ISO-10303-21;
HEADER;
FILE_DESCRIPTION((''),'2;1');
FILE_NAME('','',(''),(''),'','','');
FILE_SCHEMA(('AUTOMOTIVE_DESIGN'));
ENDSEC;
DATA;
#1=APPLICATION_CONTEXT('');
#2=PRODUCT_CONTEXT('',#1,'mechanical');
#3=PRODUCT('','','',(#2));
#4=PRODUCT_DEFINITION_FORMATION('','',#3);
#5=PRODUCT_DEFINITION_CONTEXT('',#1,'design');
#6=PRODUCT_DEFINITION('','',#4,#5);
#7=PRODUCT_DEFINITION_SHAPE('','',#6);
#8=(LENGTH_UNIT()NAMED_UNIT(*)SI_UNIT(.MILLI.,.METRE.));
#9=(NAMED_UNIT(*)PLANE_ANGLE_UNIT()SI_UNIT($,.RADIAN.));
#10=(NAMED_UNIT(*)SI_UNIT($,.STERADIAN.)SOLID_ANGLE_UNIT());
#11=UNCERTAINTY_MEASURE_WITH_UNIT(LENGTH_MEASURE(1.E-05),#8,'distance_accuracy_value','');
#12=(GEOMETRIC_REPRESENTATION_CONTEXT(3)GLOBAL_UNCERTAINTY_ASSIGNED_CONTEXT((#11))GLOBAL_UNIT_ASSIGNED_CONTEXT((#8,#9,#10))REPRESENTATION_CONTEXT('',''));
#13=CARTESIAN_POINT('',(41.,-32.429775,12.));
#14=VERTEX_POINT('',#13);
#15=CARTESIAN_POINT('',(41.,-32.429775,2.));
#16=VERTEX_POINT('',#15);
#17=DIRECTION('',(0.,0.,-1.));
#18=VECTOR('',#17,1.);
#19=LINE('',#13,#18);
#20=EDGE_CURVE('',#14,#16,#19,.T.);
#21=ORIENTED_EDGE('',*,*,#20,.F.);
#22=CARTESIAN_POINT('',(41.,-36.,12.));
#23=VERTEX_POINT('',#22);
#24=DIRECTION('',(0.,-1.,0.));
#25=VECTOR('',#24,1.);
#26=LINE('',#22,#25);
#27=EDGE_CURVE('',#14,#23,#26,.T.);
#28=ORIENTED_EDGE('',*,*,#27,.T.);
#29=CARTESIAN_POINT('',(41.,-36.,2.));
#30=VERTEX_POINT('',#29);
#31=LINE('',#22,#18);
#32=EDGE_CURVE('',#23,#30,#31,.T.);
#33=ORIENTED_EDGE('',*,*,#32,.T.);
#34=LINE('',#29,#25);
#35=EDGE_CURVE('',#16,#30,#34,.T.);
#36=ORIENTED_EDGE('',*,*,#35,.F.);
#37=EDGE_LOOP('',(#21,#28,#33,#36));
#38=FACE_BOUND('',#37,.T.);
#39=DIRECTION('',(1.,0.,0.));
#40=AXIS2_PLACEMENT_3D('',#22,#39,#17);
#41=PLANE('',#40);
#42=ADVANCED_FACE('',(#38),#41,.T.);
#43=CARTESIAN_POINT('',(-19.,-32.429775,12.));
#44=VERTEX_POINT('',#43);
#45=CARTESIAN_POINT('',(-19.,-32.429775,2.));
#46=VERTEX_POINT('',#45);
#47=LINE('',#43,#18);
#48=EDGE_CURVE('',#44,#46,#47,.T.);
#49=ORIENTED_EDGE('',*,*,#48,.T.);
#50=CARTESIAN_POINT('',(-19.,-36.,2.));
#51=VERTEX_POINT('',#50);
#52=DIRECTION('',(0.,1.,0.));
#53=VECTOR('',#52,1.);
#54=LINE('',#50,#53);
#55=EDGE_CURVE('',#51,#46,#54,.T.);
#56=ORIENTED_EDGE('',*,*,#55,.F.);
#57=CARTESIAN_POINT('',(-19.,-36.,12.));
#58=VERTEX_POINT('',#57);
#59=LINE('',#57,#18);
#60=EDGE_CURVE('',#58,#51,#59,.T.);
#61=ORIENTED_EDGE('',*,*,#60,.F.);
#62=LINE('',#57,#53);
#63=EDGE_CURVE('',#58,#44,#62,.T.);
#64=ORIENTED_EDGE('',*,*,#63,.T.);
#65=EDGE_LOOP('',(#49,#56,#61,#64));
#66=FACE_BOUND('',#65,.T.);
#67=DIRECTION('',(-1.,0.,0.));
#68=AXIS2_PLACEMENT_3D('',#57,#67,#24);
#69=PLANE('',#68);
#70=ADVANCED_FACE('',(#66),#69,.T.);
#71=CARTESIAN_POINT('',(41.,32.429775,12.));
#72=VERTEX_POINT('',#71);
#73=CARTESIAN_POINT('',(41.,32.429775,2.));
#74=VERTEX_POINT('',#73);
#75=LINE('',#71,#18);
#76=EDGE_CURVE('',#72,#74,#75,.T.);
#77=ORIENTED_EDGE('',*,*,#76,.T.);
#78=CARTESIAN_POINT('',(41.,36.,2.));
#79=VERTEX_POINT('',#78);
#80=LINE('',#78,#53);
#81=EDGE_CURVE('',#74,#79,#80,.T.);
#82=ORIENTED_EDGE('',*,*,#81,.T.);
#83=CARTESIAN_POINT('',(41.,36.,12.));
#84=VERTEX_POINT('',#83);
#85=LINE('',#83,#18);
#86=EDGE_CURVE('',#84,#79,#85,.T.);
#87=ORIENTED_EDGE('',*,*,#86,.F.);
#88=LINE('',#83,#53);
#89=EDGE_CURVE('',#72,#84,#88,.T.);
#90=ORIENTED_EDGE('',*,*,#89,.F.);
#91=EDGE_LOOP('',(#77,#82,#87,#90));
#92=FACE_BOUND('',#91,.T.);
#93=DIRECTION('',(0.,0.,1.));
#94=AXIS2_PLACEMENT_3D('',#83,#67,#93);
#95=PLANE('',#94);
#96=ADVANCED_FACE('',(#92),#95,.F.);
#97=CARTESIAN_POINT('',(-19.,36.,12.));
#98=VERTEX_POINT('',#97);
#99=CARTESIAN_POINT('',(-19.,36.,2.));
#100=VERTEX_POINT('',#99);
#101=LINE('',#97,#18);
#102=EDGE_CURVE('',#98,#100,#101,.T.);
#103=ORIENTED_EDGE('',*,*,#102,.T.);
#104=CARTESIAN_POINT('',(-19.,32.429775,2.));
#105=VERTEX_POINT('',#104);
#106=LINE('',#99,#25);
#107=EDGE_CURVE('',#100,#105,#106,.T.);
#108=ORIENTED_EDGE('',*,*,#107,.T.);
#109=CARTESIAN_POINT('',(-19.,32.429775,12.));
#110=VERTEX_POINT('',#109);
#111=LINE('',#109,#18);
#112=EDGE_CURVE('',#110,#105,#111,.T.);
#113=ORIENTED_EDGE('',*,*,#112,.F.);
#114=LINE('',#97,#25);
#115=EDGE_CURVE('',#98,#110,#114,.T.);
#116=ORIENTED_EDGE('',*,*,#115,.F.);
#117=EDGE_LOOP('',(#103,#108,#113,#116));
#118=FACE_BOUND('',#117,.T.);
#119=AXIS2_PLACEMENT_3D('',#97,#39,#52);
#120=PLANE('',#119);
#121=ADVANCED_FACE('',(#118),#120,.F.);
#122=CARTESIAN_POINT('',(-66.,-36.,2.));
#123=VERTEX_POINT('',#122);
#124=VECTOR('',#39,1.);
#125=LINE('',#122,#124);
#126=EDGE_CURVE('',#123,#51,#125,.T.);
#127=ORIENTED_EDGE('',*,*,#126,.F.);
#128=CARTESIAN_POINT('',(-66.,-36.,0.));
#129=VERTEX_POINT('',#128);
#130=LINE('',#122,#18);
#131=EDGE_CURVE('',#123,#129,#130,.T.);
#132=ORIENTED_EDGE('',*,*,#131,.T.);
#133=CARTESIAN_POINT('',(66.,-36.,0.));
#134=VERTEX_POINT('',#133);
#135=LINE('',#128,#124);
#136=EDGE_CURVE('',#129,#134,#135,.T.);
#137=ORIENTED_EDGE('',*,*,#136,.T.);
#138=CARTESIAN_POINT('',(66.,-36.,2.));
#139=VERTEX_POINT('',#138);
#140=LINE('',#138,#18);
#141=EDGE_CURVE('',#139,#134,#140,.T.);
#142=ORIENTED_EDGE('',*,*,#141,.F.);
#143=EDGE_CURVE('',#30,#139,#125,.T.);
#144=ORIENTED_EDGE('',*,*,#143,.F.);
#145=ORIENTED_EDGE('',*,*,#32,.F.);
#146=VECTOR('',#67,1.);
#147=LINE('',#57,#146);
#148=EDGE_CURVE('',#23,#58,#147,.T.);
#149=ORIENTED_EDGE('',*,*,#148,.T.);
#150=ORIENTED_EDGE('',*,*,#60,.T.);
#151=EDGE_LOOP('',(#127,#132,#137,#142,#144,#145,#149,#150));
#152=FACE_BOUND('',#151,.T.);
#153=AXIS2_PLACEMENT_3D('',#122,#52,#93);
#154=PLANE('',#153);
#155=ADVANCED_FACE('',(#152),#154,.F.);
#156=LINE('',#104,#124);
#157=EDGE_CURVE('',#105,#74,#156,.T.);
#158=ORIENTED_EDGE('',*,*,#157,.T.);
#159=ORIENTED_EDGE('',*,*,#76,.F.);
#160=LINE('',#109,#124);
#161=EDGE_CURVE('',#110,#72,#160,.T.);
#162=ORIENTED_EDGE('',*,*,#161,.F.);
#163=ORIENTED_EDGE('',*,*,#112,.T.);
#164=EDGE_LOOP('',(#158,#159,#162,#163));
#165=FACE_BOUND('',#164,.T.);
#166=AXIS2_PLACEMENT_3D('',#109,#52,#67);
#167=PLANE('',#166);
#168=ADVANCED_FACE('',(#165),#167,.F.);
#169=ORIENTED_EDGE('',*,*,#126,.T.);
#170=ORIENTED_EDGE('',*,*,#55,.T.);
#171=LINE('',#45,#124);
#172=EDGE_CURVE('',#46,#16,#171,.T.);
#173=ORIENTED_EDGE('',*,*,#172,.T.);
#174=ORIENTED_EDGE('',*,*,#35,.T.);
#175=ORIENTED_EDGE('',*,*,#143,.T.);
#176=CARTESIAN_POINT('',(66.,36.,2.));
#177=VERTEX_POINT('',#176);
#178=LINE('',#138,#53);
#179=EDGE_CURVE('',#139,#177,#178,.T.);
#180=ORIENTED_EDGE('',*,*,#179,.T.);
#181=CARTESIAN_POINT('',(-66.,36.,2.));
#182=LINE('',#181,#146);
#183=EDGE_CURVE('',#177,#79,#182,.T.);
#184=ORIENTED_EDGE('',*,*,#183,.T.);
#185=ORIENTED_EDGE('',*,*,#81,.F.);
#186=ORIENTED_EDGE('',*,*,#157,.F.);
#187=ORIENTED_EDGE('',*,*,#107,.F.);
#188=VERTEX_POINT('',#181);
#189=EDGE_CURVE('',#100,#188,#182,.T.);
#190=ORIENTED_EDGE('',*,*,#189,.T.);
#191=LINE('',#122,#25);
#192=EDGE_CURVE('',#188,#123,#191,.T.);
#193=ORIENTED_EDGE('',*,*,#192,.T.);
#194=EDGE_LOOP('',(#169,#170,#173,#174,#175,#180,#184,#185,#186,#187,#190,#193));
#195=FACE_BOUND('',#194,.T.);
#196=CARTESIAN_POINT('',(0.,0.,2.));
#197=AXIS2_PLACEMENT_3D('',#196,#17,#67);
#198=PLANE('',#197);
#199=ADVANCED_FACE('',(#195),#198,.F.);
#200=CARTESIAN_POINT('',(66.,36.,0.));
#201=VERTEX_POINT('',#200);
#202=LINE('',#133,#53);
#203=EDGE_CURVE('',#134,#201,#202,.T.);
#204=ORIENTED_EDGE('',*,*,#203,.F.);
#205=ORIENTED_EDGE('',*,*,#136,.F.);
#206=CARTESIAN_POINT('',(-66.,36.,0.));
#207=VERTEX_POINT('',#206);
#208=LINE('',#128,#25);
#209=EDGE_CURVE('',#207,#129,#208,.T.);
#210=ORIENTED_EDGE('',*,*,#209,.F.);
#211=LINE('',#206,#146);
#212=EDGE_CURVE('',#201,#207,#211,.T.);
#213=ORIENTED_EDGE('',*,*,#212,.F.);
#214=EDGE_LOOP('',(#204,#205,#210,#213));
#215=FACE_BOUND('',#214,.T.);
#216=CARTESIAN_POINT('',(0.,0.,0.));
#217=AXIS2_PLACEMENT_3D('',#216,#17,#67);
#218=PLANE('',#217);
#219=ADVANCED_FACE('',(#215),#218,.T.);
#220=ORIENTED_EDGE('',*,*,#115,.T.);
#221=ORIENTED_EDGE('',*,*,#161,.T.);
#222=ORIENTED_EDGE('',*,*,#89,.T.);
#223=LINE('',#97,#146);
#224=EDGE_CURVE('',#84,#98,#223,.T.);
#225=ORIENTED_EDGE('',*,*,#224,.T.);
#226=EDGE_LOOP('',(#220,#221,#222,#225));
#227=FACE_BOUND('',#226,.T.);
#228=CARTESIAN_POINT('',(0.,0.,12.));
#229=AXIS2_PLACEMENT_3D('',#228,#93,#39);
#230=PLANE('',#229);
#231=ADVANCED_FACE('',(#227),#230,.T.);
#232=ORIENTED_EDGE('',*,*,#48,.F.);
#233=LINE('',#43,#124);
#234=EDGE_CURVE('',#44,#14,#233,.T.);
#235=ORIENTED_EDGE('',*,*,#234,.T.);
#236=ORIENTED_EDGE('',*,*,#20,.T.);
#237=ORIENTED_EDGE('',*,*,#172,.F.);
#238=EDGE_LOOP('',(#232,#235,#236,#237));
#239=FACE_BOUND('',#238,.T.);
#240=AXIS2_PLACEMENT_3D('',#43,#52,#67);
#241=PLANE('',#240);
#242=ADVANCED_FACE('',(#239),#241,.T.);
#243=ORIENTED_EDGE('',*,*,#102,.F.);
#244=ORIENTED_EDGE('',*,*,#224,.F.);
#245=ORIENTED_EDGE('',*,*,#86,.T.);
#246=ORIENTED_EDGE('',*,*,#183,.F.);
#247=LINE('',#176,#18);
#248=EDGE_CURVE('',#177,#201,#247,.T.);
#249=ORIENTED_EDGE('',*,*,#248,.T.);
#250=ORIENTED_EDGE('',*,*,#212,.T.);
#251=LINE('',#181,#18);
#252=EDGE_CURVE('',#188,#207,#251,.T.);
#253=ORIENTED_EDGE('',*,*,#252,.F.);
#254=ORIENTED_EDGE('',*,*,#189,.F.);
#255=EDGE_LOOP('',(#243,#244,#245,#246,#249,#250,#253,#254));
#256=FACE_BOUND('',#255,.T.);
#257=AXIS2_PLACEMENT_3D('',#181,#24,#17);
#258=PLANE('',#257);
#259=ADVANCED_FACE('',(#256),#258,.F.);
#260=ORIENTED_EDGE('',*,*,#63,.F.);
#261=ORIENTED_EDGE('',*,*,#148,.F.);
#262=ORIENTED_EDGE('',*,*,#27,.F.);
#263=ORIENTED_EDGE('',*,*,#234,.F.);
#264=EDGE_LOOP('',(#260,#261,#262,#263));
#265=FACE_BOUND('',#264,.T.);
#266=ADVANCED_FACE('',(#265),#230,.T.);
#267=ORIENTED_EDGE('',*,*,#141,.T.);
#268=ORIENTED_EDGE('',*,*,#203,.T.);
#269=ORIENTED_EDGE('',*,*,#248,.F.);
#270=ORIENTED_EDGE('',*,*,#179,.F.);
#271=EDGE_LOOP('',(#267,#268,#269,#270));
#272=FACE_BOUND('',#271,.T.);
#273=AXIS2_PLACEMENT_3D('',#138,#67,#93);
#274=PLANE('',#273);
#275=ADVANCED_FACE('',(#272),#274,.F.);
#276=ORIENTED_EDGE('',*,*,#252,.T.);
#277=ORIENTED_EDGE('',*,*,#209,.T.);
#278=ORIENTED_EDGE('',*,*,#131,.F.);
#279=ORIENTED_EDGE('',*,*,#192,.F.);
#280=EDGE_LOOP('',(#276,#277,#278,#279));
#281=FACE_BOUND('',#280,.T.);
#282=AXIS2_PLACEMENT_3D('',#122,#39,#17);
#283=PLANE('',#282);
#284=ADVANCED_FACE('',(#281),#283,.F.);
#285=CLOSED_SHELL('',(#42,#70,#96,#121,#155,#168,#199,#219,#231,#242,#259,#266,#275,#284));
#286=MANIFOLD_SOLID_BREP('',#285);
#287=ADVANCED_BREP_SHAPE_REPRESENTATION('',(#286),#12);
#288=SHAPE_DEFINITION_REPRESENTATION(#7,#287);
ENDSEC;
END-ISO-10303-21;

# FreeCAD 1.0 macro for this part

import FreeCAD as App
import Part
import Sketcher

V = App.Vector


def add_polygon(sketch, points):
    """Adds a closed chain of lines whose ends are joined by coincident constraints."""
    first, n = sketch.GeometryCount, len(points)
    for a, b in zip(points, points[1:] + points[:1]):
        sketch.addGeometry(Part.LineSegment(App.Vector(*a, 0), App.Vector(*b, 0)), False)
    for i in range(n):
        sketch.addConstraint(Sketcher.Constraint("Coincident", first + i, 2, first + (i + 1) % n, 1))

doc = App.newDocument("Part")
body = doc.addObject("PartDesign::Body", "Body")

sketch1 = body.newObject("Sketcher::SketchObject", "Sketch")
sketch1.AttachmentSupport = (doc.getObject("XY_Plane"), [""])
sketch1.MapMode = "FlatFace"
add_polygon(sketch1, [(-66, 36), (-66, -36), (66, -36), (66, 36)])
sketch1.addConstraint(Sketcher.Constraint("Vertical", 0))
sketch1.addConstraint(Sketcher.Constraint("Horizontal", 1))
sketch1.addConstraint(Sketcher.Constraint("Vertical", 2))
sketch1.addConstraint(Sketcher.Constraint("Horizontal", 3))
sketch1.addConstraint(Sketcher.Constraint("Symmetric", 0, 2, 2, 2, -1, 1))
sketch1.addConstraint(Sketcher.Constraint("DistanceX", 1, 1, 1, 2, 132.0))
sketch1.addConstraint(Sketcher.Constraint("DistanceY", 0, 2, 0, 1, 72.0))
pad1 = body.newObject("PartDesign::Pad", "Pad")
pad1.Profile = sketch1
pad1.Length = 2

sketch2 = body.newObject("Sketcher::SketchObject", "Sketch001")
sketch2.AttachmentSupport = (doc.getObject("XY_Plane"), [""])
sketch2.MapMode = "FlatFace"
sketch2.AttachmentOffset = App.Placement(V(0, 0, 2), App.Rotation())
add_polygon(sketch2, [(-19, 36), (-19, 32.4), (41, 32.4), (41, 36)])
sketch2.addConstraint(Sketcher.Constraint("Vertical", 0))
sketch2.addConstraint(Sketcher.Constraint("Horizontal", 1))
sketch2.addConstraint(Sketcher.Constraint("Vertical", 2))
sketch2.addConstraint(Sketcher.Constraint("Horizontal", 3))
sketch2.addConstraint(Sketcher.Constraint("DistanceX", 1, 1, 1, 2, 60.0))
sketch2.addConstraint(Sketcher.Constraint("DistanceX", 0, 2, -1, 1, 19.0))
sketch2.addConstraint(Sketcher.Constraint("DistanceY", -1, 1, 2, 2, 36.0))
sketch2.addConstraint(Sketcher.Constraint("DistanceY", 0, 2, 0, 1, 3.570225))
pad2 = body.newObject("PartDesign::Pad", "Pad001")
pad2.Profile = sketch2
pad2.Length = 10
doc.recompute()

mirrored = body.newObject("PartDesign::Mirrored", "Mirrored")
mirrored.Originals = [pad2]
mirrored.MirrorPlane = (doc.getObject("XZ_Plane"), [""])
body.Tip = mirrored

doc.recompute()
